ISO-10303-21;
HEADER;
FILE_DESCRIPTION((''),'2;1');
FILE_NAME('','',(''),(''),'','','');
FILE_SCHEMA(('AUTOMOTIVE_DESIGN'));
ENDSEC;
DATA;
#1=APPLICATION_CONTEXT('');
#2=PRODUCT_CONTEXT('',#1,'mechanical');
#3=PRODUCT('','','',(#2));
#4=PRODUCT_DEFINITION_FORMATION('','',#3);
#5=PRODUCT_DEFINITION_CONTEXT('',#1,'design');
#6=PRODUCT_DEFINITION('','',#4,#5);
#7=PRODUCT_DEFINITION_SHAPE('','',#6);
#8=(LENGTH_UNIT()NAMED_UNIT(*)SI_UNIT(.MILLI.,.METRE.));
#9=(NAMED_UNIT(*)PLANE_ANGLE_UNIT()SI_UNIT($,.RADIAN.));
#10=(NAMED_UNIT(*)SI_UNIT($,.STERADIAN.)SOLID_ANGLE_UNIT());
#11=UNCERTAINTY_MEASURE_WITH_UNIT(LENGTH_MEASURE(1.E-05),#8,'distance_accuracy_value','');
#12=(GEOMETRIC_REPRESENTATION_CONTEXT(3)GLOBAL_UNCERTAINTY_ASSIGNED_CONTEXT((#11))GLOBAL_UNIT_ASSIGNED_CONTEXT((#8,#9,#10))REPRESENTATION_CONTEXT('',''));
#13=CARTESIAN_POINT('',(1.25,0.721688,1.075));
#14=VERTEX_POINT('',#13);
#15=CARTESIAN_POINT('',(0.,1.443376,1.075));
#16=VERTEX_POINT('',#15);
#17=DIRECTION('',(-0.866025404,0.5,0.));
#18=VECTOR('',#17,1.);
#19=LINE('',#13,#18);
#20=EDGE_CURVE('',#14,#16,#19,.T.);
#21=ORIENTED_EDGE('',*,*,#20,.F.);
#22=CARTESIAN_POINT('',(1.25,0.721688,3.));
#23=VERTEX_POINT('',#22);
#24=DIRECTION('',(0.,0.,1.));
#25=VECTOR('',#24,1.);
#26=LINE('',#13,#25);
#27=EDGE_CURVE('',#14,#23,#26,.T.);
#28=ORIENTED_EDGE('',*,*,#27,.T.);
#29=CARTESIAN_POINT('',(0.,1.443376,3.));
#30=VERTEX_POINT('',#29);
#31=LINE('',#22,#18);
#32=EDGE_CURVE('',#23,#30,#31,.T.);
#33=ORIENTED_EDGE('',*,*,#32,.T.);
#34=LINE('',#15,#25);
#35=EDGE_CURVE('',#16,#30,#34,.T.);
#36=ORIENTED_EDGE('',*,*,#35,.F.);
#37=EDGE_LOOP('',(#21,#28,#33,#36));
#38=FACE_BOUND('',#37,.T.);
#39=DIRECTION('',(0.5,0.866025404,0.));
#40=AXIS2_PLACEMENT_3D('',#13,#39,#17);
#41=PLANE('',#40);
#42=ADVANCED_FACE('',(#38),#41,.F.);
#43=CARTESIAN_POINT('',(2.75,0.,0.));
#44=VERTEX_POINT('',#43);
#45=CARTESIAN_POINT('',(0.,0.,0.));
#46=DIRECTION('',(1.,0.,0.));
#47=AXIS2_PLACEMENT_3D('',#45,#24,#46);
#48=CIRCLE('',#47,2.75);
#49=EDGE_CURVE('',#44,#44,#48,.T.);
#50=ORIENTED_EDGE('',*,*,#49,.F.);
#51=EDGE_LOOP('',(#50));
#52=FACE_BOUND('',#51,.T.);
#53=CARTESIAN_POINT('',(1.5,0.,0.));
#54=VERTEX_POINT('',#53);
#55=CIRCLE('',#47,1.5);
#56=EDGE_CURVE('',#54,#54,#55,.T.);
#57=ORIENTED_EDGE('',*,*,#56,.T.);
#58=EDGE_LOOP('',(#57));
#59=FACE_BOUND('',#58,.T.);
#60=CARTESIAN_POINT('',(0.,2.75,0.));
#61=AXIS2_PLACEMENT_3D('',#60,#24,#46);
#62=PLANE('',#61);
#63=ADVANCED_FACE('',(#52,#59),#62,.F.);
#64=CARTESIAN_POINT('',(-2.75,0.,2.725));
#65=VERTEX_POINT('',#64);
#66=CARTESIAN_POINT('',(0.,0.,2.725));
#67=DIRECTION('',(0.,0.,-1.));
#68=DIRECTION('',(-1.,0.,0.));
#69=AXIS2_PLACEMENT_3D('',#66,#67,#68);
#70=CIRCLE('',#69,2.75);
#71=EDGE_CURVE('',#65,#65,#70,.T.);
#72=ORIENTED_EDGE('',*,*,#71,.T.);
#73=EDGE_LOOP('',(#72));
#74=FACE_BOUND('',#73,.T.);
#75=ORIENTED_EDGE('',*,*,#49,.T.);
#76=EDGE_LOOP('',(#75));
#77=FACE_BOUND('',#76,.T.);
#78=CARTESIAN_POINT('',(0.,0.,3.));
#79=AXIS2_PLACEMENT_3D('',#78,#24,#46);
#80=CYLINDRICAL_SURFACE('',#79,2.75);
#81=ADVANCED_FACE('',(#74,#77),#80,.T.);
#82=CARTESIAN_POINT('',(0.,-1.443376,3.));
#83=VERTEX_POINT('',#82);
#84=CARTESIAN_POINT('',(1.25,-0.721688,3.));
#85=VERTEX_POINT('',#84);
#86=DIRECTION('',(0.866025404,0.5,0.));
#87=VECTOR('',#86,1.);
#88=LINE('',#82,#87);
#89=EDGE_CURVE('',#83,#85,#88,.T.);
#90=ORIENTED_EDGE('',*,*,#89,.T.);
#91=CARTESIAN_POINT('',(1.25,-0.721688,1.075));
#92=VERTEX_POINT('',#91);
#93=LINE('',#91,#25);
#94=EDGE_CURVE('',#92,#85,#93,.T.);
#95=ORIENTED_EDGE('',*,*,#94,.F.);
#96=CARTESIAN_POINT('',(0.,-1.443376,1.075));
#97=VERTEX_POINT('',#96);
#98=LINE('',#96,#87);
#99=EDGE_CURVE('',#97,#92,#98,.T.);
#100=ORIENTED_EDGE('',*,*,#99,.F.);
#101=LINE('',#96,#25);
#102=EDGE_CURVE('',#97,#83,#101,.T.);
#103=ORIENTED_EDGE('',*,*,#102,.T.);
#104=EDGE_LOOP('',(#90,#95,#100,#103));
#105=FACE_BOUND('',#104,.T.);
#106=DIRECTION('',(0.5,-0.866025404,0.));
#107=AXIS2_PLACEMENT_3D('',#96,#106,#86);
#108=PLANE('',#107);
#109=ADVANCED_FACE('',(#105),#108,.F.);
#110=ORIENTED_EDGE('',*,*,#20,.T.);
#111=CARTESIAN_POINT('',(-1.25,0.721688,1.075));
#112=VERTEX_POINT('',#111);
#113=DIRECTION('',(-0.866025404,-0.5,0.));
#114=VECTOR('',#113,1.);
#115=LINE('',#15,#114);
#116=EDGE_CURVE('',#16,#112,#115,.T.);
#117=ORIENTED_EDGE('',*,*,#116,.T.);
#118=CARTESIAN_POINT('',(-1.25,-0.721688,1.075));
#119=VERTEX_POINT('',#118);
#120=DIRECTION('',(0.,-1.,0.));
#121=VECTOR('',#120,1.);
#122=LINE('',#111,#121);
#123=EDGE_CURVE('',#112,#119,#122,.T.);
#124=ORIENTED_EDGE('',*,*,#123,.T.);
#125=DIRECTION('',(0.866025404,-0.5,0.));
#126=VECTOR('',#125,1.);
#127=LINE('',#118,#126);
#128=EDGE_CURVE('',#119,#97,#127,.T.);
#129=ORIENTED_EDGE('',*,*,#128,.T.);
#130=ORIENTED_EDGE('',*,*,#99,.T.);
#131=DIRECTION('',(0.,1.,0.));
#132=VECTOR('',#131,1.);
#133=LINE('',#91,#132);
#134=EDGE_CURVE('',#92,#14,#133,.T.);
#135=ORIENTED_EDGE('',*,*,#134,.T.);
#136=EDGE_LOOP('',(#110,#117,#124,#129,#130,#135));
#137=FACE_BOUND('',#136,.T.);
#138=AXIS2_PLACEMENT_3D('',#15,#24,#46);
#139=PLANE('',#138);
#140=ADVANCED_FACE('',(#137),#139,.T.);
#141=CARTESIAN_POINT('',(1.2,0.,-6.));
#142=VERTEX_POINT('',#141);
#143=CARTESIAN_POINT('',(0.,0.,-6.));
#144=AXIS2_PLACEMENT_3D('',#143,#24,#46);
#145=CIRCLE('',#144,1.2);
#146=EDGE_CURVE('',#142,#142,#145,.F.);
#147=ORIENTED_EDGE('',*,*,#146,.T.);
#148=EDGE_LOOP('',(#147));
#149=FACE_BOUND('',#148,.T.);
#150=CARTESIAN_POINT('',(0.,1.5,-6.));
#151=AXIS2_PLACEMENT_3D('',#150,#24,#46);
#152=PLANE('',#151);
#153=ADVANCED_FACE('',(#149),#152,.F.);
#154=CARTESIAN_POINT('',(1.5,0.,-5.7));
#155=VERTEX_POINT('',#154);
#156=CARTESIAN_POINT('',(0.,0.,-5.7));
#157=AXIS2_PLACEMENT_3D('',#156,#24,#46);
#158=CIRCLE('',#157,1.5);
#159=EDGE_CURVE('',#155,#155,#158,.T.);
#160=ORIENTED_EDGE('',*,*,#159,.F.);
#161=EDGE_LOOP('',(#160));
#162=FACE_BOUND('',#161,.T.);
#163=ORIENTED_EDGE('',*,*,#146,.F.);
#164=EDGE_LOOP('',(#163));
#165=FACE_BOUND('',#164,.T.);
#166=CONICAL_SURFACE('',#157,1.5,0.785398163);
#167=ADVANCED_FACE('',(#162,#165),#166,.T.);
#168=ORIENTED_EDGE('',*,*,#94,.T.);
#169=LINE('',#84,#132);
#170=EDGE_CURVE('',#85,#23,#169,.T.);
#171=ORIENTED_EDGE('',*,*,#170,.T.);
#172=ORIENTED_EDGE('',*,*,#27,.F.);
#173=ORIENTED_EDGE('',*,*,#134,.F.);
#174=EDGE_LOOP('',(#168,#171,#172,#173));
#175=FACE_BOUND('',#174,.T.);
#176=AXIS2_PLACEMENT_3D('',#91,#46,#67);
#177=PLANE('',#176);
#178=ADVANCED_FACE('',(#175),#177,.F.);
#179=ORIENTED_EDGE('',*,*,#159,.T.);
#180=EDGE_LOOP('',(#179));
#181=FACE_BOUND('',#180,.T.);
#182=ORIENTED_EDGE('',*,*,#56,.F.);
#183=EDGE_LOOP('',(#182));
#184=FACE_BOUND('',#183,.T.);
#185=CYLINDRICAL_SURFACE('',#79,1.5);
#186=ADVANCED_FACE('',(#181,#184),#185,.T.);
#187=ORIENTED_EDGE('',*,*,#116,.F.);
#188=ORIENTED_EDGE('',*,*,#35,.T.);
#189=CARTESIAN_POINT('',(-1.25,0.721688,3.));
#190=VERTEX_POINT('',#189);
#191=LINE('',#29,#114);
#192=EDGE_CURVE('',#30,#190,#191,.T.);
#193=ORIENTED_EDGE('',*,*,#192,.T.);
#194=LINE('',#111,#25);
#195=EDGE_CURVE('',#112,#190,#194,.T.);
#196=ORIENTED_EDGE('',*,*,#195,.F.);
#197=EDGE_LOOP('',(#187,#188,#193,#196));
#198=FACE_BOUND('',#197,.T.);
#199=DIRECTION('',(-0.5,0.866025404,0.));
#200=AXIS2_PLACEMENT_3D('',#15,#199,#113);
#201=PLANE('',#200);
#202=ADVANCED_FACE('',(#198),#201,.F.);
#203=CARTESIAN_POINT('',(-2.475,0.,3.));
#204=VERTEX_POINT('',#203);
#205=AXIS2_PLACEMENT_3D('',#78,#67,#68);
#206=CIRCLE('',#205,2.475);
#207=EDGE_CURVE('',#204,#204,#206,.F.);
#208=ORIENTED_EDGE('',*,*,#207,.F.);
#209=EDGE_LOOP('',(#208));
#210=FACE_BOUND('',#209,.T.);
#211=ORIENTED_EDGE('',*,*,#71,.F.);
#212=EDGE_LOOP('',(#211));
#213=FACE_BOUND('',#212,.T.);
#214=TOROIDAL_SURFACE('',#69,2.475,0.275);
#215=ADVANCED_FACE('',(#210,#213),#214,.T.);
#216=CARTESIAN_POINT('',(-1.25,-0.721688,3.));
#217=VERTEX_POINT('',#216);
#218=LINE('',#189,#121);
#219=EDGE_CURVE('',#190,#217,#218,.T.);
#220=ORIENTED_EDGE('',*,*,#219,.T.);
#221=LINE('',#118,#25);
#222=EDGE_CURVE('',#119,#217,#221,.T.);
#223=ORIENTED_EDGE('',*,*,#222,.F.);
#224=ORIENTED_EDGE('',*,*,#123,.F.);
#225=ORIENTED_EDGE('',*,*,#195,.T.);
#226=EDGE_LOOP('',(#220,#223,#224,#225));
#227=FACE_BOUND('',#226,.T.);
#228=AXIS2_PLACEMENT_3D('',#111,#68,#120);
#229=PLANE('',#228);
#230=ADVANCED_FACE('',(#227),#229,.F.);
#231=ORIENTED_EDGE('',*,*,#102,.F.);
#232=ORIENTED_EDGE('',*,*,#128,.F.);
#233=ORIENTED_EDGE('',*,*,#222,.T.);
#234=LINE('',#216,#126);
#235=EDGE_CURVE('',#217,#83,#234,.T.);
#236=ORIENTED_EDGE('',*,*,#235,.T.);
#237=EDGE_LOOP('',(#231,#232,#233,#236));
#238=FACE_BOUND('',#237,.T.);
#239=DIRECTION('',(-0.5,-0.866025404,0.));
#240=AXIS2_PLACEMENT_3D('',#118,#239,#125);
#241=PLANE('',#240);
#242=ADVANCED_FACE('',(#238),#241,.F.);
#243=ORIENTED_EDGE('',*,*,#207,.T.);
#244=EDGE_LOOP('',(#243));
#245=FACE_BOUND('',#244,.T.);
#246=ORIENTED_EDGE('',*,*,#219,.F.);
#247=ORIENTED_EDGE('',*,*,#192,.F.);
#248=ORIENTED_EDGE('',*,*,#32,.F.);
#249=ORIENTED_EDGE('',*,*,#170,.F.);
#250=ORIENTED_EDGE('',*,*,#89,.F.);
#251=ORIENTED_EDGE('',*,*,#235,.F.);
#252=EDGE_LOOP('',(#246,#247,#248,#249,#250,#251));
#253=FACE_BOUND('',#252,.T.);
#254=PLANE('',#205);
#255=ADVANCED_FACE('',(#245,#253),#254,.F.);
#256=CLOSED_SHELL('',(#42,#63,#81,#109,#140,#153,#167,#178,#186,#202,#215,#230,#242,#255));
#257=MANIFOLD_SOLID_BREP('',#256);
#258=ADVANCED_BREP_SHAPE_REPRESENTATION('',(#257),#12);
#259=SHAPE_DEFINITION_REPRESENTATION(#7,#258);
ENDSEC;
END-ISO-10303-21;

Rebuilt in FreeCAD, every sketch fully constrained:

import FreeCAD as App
import Part
import Sketcher

V = App.Vector
Q = App.Units.Quantity


def edges_at(feature, points):
    """Names of the edges that pass closest to the given points."""
    edges = feature.Shape.Edges
    near = lambda p: min(range(len(edges)), key=lambda i: edges[i].distToShape(Part.Vertex(*p))[0])
    return sorted({f"Edge{near(p) + 1}" for p in points})

doc = App.newDocument("Part")
body = doc.addObject("PartDesign::Body", "Body")

sketch1 = body.newObject("Sketcher::SketchObject", "Sketch")
sketch1.AttachmentSupport = (doc.getObject("YZ_Plane"), [""])
sketch1.MapMode = "FlatFace"
sketch1.addGeometry(Part.LineSegment(V(2.8, 3, 0), V(0, 3, 0)), False)
sketch1.addGeometry(Part.LineSegment(V(0, 3, 0), V(0, -6, 0)), False)
sketch1.addGeometry(Part.LineSegment(V(0, -6, 0), V(1.5, -6, 0)), False)
sketch1.addGeometry(Part.LineSegment(V(1.5, -6, 0), V(1.5, 0, 0)), False)
sketch1.addGeometry(Part.LineSegment(V(1.5, 0, 0), V(2.8, 0, 0)), False)
sketch1.addGeometry(Part.LineSegment(V(2.8, 0, 0), V(2.8, 3, 0)), False)
sketch1.addConstraint(Sketcher.Constraint("Coincident", 0, 2, 1, 1))
sketch1.addConstraint(Sketcher.Constraint("Coincident", 1, 2, 2, 1))
sketch1.addConstraint(Sketcher.Constraint("Coincident", 2, 2, 3, 1))
sketch1.addConstraint(Sketcher.Constraint("Coincident", 3, 2, 4, 1))
sketch1.addConstraint(Sketcher.Constraint("Coincident", 4, 2, 5, 1))
sketch1.addConstraint(Sketcher.Constraint("Coincident", 5, 2, 0, 1))
sketch1.addConstraint(Sketcher.Constraint("Horizontal", 0))
sketch1.addConstraint(Sketcher.Constraint("Vertical", 1))
sketch1.addConstraint(Sketcher.Constraint("Horizontal", 2))
sketch1.addConstraint(Sketcher.Constraint("Vertical", 3))
sketch1.addConstraint(Sketcher.Constraint("Horizontal", 4))
sketch1.addConstraint(Sketcher.Constraint("Vertical", 5))
sketch1.addConstraint(Sketcher.Constraint("PointOnObject", 0, 2, -2))
sketch1.addConstraint(Sketcher.Constraint("PointOnObject", 3, 2, -1))
sketch1.addConstraint(Sketcher.Constraint("DistanceY", 1, 2, 1, 1, 9.0))
sketch1.addConstraint(Sketcher.Constraint("DistanceY", 3, 1, 3, 2, 6.0))
sketch1.addConstraint(Sketcher.Constraint("DistanceX", 2, 1, 2, 2, 1.5))
sketch1.addConstraint(Sketcher.Constraint("DistanceX", 0, 2, 0, 1, 2.75))
revolution = body.newObject("PartDesign::Revolution", "Revolution")
revolution.Profile = sketch1
revolution.ReferenceAxis = (sketch1, ["V_Axis"])
revolution.Angle = 360

sketch2 = body.newObject("Sketcher::SketchObject", "Sketch001")
sketch2.AttachmentSupport = (doc.getObject("XY_Plane"), [""])
sketch2.MapMode = "FlatFace"
sketch2.AttachmentOffset = App.Placement(V(0, 0, 3), App.Rotation())
sketch2.addGeometry(Part.LineSegment(V(0, 1.4, 0), V(-1.2, 0.7, 0)), False)
sketch2.addGeometry(Part.LineSegment(V(-1.2, 0.7, 0), V(-1.2, -0.7, 0)), False)
sketch2.addGeometry(Part.LineSegment(V(-1.2, -0.7, 0), V(0, -1.4, 0)), False)
sketch2.addGeometry(Part.LineSegment(V(0, -1.4, 0), V(1.2, -0.7, 0)), False)
sketch2.addGeometry(Part.LineSegment(V(1.2, -0.7, 0), V(1.2, 0.7, 0)), False)
sketch2.addGeometry(Part.LineSegment(V(1.2, 0.7, 0), V(0, 1.4, 0)), False)
sketch2.addConstraint(Sketcher.Constraint("Coincident", 0, 2, 1, 1))
sketch2.addConstraint(Sketcher.Constraint("Coincident", 1, 2, 2, 1))
sketch2.addConstraint(Sketcher.Constraint("Coincident", 2, 2, 3, 1))
sketch2.addConstraint(Sketcher.Constraint("Coincident", 3, 2, 4, 1))
sketch2.addConstraint(Sketcher.Constraint("Coincident", 4, 2, 5, 1))
sketch2.addConstraint(Sketcher.Constraint("Coincident", 5, 2, 0, 1))
sketch2.addConstraint(Sketcher.Constraint("Vertical", 1))
sketch2.addConstraint(Sketcher.Constraint("Vertical", 4))
sketch2.addConstraint(Sketcher.Constraint("Symmetric", 0, 2, 3, 2, -1, 1))
sketch2.addConstraint(Sketcher.Constraint("Symmetric", 2, 2, 5, 2, -1, 1))
sketch2.addConstraint(Sketcher.Constraint("PointOnObject", 2, 2, -2))
sketch2.addConstraint(Sketcher.Constraint("Parallel", 2, 5))
sketch2.addConstraint(Sketcher.Constraint("Horizontal", 1, 2, 3, 2))
sketch2.addConstraint(Sketcher.Constraint("Angle", 0, Q("-150 deg")))
sketch2.addConstraint(Sketcher.Constraint("DistanceX", 1, 2, 3, 2, 2.5))
sketch2.addConstraint(Sketcher.Constraint("DistanceY", 1, 2, 1, 1, 1.443376))
pocket1 = body.newObject("PartDesign::Pocket", "Pocket")
pocket1.Profile = sketch2
pocket1.Length = 1.925
doc.recompute()

fillet = body.newObject("PartDesign::Fillet", "Fillet")
fillet.Base = (pocket1, edges_at(pocket1, [(-2.75, 0, 3)]))
fillet.Radius = 0.275
doc.recompute()

chamfer = body.newObject("PartDesign::Chamfer", "Chamfer")
chamfer.Base = (fillet, edges_at(fillet, [(-1.5, 0, -6)]))
chamfer.Size = 0.3

doc.recompute()
